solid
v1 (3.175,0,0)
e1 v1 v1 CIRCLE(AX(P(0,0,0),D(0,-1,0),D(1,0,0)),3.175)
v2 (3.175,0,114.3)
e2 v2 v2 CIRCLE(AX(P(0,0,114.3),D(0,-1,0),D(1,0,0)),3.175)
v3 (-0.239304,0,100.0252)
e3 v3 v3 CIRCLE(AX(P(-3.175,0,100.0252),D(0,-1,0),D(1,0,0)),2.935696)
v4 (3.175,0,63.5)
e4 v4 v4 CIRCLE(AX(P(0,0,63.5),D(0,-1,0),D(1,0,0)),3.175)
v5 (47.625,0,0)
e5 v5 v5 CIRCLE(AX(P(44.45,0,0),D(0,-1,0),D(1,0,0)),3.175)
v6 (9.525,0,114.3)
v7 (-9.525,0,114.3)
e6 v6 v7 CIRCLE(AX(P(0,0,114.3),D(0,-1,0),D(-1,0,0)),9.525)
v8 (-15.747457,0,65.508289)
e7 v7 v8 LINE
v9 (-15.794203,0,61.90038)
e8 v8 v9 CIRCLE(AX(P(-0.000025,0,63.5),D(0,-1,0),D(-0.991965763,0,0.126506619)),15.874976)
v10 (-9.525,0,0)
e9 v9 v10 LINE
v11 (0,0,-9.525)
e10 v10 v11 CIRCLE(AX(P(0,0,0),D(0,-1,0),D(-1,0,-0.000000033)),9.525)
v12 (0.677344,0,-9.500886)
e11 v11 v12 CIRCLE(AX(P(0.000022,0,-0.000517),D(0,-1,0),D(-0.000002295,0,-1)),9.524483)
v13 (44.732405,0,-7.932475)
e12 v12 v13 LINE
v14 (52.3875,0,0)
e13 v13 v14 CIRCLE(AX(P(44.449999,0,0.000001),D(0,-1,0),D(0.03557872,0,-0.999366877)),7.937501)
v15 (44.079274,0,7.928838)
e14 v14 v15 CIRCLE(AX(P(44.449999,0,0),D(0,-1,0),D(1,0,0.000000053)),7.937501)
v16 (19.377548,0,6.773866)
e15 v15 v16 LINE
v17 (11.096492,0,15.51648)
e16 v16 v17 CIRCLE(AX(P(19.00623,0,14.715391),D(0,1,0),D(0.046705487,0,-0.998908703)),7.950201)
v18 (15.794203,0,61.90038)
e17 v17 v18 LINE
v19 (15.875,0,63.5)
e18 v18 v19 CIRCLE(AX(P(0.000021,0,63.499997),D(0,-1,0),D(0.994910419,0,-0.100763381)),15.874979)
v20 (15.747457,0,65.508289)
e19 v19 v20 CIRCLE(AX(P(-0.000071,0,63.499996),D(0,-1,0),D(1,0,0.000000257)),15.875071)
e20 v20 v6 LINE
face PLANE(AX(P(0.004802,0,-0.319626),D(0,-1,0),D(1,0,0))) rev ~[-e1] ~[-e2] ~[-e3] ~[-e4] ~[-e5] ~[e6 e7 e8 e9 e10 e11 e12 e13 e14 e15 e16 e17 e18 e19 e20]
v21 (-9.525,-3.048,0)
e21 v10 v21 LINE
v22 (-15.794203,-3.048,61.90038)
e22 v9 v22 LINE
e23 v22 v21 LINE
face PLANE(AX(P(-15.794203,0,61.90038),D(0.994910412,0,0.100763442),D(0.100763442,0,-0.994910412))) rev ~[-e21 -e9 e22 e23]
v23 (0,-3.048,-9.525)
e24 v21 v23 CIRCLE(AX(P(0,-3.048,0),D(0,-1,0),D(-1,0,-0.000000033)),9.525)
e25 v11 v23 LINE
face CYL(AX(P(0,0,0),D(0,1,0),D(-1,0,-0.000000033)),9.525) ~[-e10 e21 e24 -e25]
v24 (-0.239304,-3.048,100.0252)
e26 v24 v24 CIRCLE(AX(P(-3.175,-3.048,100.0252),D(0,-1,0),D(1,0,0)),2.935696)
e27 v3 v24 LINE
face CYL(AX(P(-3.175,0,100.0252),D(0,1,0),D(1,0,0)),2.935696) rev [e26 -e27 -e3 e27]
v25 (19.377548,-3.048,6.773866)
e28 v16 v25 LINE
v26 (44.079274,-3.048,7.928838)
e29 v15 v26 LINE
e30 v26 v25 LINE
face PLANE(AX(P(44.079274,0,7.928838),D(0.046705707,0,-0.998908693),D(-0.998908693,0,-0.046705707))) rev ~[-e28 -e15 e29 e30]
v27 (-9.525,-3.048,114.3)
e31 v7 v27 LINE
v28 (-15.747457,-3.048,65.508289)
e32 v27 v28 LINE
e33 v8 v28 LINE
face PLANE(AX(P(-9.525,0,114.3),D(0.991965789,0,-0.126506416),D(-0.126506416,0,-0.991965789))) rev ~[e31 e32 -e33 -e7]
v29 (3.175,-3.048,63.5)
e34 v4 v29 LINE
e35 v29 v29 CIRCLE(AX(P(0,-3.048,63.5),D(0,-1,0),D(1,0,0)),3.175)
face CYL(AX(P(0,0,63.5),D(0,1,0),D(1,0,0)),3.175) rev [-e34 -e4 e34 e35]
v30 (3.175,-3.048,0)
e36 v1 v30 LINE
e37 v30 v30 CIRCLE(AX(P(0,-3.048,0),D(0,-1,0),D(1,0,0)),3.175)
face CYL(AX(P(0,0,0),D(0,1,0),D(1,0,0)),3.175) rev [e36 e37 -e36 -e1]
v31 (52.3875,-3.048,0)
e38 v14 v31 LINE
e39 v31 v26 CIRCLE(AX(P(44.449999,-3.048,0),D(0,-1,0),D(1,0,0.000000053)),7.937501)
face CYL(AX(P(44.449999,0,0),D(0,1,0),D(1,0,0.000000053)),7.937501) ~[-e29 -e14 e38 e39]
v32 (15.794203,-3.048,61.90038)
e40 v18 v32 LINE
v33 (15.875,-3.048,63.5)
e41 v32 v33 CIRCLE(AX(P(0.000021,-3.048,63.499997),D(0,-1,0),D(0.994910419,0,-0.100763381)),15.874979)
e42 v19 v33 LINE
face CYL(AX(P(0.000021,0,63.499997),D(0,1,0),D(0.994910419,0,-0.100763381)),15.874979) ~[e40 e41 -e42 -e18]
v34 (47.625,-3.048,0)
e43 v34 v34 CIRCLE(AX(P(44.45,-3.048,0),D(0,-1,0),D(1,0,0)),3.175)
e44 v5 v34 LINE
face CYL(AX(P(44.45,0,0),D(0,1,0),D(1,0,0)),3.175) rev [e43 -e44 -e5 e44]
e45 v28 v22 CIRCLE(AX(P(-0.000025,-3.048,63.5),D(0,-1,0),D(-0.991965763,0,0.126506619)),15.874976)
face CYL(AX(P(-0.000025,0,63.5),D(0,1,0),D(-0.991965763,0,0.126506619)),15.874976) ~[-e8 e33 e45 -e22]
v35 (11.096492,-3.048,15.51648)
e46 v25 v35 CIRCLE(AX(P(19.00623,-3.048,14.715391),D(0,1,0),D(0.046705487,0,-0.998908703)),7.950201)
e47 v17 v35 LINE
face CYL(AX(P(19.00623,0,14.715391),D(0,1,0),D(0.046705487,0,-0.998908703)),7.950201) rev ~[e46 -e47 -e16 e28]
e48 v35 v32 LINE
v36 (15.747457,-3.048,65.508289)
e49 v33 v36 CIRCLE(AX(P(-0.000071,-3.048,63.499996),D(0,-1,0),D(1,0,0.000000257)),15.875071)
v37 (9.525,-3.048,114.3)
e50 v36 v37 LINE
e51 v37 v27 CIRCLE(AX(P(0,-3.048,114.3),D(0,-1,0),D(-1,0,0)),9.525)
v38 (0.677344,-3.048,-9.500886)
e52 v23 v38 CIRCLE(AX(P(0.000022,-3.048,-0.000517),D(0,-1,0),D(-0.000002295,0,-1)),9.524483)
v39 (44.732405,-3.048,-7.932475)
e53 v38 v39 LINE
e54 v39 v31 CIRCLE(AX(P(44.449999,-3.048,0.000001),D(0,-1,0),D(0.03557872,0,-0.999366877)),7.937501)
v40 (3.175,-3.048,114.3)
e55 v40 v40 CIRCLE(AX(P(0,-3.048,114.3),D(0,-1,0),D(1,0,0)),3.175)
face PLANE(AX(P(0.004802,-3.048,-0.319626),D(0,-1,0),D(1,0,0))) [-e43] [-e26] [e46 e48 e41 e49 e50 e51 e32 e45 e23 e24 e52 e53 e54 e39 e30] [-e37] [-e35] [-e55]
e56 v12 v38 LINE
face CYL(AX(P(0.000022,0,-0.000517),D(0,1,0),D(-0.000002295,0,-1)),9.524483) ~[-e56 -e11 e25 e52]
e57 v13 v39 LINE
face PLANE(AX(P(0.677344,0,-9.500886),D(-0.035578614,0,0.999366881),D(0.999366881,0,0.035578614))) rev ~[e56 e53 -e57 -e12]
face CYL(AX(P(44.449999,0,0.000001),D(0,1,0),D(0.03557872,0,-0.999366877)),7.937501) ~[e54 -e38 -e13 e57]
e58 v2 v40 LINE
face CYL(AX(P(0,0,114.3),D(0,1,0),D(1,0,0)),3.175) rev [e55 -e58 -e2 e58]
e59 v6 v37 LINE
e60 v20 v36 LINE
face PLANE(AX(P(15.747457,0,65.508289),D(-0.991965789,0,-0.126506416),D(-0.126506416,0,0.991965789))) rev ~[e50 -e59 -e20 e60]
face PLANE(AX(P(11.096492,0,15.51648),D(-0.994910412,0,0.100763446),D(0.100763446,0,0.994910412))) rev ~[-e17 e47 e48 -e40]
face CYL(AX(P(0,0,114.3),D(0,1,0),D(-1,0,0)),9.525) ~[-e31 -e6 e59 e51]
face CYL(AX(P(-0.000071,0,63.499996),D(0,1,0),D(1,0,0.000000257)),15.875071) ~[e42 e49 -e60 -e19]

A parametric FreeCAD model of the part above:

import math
import FreeCAD as App
import Part
import Sketcher

V = App.Vector
Q = App.Units.Quantity

doc = App.newDocument("Part")
body = doc.addObject("PartDesign::Body", "Body")

sketch1 = body.newObject("Sketcher::SketchObject", "Sketch")
sketch1.AttachmentSupport = (doc.getObject("XZ_Plane"), [""])
sketch1.MapMode = "FlatFace"
sketch1.addGeometry(Part.LineSegment(V(0.677344, -9.500886, 0), V(44.732405, -7.932475, 0)), False)
sketch1.addGeometry(Part.ArcOfCircle(Part.Circle(V(44.449999, 0.000001, 0), V(0, 0, 1), 7.937501), math.radians(-87.961059), math.radians(-0.000005)), False)
sketch1.addGeometry(Part.ArcOfCircle(Part.Circle(V(44.449999, 0, 0), V(0, 0, 1), 7.937501), math.radians(0.000003), math.radians(92.677005)), False)
sketch1.addGeometry(Part.LineSegment(V(44.079274, 7.928838, 0), V(19.377548, 6.773866, 0)), False)
sketch1.addGeometry(Part.ArcOfCircle(Part.Circle(V(19.00623, 14.715391, 0), V(0, 0, 1), 7.950201), math.radians(174.216871), math.radians(272.677001)), False)
sketch1.addGeometry(Part.LineSegment(V(11.096492, 15.51648, 0), V(15.794203, 61.90038, 0)), False)
sketch1.addGeometry(Part.ArcOfCircle(Part.Circle(V(0.000021, 63.499997, 0), V(0, 0, 1), 15.874979), math.radians(-5.783131), math.radians(0.000012)), False)
sketch1.addGeometry(Part.ArcOfCircle(Part.Circle(V(-0.000071, 63.499996, 0), V(0, 0, 1), 15.875071), math.radians(0.000015), math.radians(7.267739)), False)
sketch1.addGeometry(Part.LineSegment(V(15.747457, 65.508289, 0), V(9.525, 114.3, 0)), False)
sketch1.addGeometry(Part.ArcOfCircle(Part.Circle(V(0, 114.3, 0), V(0, 0, 1), 9.525), math.radians(0), math.radians(180)), False)
sketch1.addGeometry(Part.LineSegment(V(-9.525, 114.3, 0), V(-15.747457, 65.508289, 0)), False)
sketch1.addGeometry(Part.ArcOfCircle(Part.Circle(V(-0.000025, 63.5, 0), V(0, 0, 1), 15.874976), math.radians(172.732231), math.radians(185.783143)), False)
sketch1.addGeometry(Part.LineSegment(V(-15.794203, 61.90038, 0), V(-9.525, 0, 0)), False)
sketch1.addGeometry(Part.ArcOfCircle(Part.Circle(V(0, 0, 0), V(0, 0, 1), 9.525), math.radians(-179.999998), math.radians(-90.000002)), False)
sketch1.addGeometry(Part.ArcOfCircle(Part.Circle(V(0.000022, -0.000517, 0), V(0, 0, 1), 9.524483), math.radians(-90.000132), math.radians(-85.922038)), False)
sketch1.addGeometry(Part.Circle(V(0, 0, 0), V(0, 0, 1), 3.175), False)
sketch1.addGeometry(Part.Circle(V(44.45, 0, 0), V(0, 0, 1), 3.175), False)
sketch1.addGeometry(Part.Circle(V(0, 63.5, 0), V(0, 0, 1), 3.175), False)
sketch1.addGeometry(Part.Circle(V(-3.175, 100.0252, 0), V(0, 0, 1), 2.935696), False)
sketch1.addGeometry(Part.Circle(V(0, 114.3, 0), V(0, 0, 1), 3.175), False)
sketch1.addConstraint(Sketcher.Constraint("Coincident", 0, 2, 1, 1))
sketch1.addConstraint(Sketcher.Constraint("Coincident", 1, 2, 2, 1))
sketch1.addConstraint(Sketcher.Constraint("Coincident", 2, 2, 3, 1))
sketch1.addConstraint(Sketcher.Constraint("Coincident", 3, 2, 4, 2))
sketch1.addConstraint(Sketcher.Constraint("Coincident", 4, 1, 5, 1))
sketch1.addConstraint(Sketcher.Constraint("Coincident", 5, 2, 6, 1))
sketch1.addConstraint(Sketcher.Constraint("Coincident", 6, 2, 7, 1))
sketch1.addConstraint(Sketcher.Constraint("Coincident", 7, 2, 8, 1))
sketch1.addConstraint(Sketcher.Constraint("Coincident", 8, 2, 9, 1))
sketch1.addConstraint(Sketcher.Constraint("Coincident", 9, 2, 10, 1))
sketch1.addConstraint(Sketcher.Constraint("Coincident", 10, 2, 11, 1))
sketch1.addConstraint(Sketcher.Constraint("Coincident", 11, 2, 12, 1))
sketch1.addConstraint(Sketcher.Constraint("Coincident", 12, 2, 13, 1))
sketch1.addConstraint(Sketcher.Constraint("Coincident", 13, 2, 14, 1))
sketch1.addConstraint(Sketcher.Constraint("Coincident", 14, 2, 0, 1))
sketch1.addConstraint(Sketcher.Constraint("Coincident", 13, 3, -1, 1))
sketch1.addConstraint(Sketcher.Constraint("Coincident", 15, 3, -1, 1))
sketch1.addConstraint(Sketcher.Constraint("Coincident", 2, 3, 1, 3))
sketch1.addConstraint(Sketcher.Constraint("Coincident", 16, 3, 1, 3))
sketch1.addConstraint(Sketcher.Constraint("Coincident", 19, 3, 9, 3))
sketch1.addConstraint(Sketcher.Constraint("PointOnObject", 1, 3, -1))
sketch1.addConstraint(Sketcher.Constraint("PointOnObject", 9, 3, -2))
sketch1.addConstraint(Sketcher.Constraint("PointOnObject", 17, 3, -2))
sketch1.addConstraint(Sketcher.Constraint("PointOnObject", 1, 2, -1))
sketch1.addConstraint(Sketcher.Constraint("PointOnObject", 12, 2, -1))
sketch1.addConstraint(Sketcher.Constraint("PointOnObject", 13, 2, -2))
sketch1.addConstraint(Sketcher.Constraint("Diameter", 15, Q("0.25 in")))
sketch1.addConstraint(Sketcher.Constraint("Diameter", 16, Q("0.25 in")))
sketch1.addConstraint(Sketcher.Constraint("Diameter", 17, Q("0.25 in")))
sketch1.addConstraint(Sketcher.Constraint("Diameter", 19, Q("0.25 in")))
sketch1.addConstraint(Sketcher.Constraint("Radius", 1, Q("0.3125 in")))
sketch1.addConstraint(Sketcher.Constraint("Radius", 4, Q("0.313 in")))
sketch1.addConstraint(Sketcher.Constraint("Radius", 9, Q("0.375 in")))
sketch1.addConstraint(Sketcher.Constraint("Radius", 13, Q("0.375 in")))
sketch1.addConstraint(Sketcher.Constraint("DistanceY", 6, 3, 9, 3, Q("2.0000001 in")))
sketch1.addConstraint(Sketcher.Constraint("DistanceY", 7, 3, 9, 3, Q("2.0000002 in")))
sketch1.addConstraint(Sketcher.Constraint("DistanceY", 11, 3, 9, 3, Q("2 in")))
sketch1.addConstraint(Sketcher.Constraint("DistanceY", 17, 3, 9, 3, Q("2 in")))
sketch1.addConstraint(Sketcher.Constraint("DistanceY", 6, 2, 8, 2, Q("2 in")))
sketch1.addConstraint(Sketcher.Constraint("DistanceY", 7, 3, 9, 2, Q("2.0000002 in")))
sketch1.addConstraint(Sketcher.Constraint("DistanceY", -1, 1, 6, 3, Q("2.4999999 in")))
sketch1.addConstraint(Sketcher.Constraint("DistanceY", -1, 1, 6, 2, Q("2.5 in")))
sketch1.addConstraint(Sketcher.Constraint("DistanceX", 18, 3, 8, 2, Q("0.5 in")))
sketch1.addConstraint(Sketcher.Constraint("DistanceX", -1, 1, 1, 3, Q("1.75 in")))
sketch1.addConstraint(Sketcher.Constraint("DistanceX", 8, 2, 6, 2, Q("0.25 in")))
sketch1.addConstraint(Sketcher.Constraint("DistanceY", -1, 1, 18, 3, Q("3.938 in")))
sketch1.addConstraint(Sketcher.Constraint("Radius", 6, Q("15.874979 mm")))
sketch1.addConstraint(Sketcher.Constraint("Radius", 7, Q("15.875071 mm")))
sketch1.addConstraint(Sketcher.Constraint("Diameter", 18, Q("5.871392 mm")))
sketch1.addConstraint(Sketcher.Constraint("Radius", 11, Q("15.874976 mm")))
sketch1.addConstraint(Sketcher.Constraint("Radius", 14, Q("9.524483 mm")))
sketch1.addConstraint(Sketcher.Constraint("DistanceX", 7, 3, 4, 3, Q("19.006301 mm")))
sketch1.addConstraint(Sketcher.Constraint("Distance", 0, Q("44.082971 mm")))
sketch1.addConstraint(Sketcher.Constraint("Distance", 8, Q("49.186889 mm")))
sketch1.addConstraint(Sketcher.Constraint("Distance", 10, Q("49.186889 mm")))
sketch1.addConstraint(Sketcher.Constraint("Distance", 12, Q("62.217039 mm")))
sketch1.addConstraint(Sketcher.Constraint("DistanceY", -1, 1, 4, 3, Q("14.715391 mm")))
sketch1.addConstraint(Sketcher.Constraint("DistanceX", -1, 1, 3, 2, Q("19.377548 mm")))
sketch1.addConstraint(Sketcher.Constraint("DistanceX", -1, 1, 4, 1, Q("11.096492 mm")))
sketch1.addConstraint(Sketcher.Constraint("DistanceY", -1, 1, 5, 2, Q("61.90038 mm")))
sketch1.addConstraint(Sketcher.Constraint("DistanceY", -1, 1, 10, 2, Q("65.508289 mm")))
sketch1.addConstraint(Sketcher.Constraint("DistanceX", 14, 3, 4, 3, Q("19.006208 mm")))
sketch1.addConstraint(Sketcher.Constraint("DistanceY", 2, 3, 2, 2, Q("7.928838 mm")))
sketch1.addConstraint(Sketcher.Constraint("DistanceX", 2, 2, 0, 2, Q("0.653131 mm")))
pad1 = body.newObject("PartDesign::Pad", "Pad")
pad1.Profile = sketch1
pad1.Length = Q("0.12 in")

doc.recompute()
